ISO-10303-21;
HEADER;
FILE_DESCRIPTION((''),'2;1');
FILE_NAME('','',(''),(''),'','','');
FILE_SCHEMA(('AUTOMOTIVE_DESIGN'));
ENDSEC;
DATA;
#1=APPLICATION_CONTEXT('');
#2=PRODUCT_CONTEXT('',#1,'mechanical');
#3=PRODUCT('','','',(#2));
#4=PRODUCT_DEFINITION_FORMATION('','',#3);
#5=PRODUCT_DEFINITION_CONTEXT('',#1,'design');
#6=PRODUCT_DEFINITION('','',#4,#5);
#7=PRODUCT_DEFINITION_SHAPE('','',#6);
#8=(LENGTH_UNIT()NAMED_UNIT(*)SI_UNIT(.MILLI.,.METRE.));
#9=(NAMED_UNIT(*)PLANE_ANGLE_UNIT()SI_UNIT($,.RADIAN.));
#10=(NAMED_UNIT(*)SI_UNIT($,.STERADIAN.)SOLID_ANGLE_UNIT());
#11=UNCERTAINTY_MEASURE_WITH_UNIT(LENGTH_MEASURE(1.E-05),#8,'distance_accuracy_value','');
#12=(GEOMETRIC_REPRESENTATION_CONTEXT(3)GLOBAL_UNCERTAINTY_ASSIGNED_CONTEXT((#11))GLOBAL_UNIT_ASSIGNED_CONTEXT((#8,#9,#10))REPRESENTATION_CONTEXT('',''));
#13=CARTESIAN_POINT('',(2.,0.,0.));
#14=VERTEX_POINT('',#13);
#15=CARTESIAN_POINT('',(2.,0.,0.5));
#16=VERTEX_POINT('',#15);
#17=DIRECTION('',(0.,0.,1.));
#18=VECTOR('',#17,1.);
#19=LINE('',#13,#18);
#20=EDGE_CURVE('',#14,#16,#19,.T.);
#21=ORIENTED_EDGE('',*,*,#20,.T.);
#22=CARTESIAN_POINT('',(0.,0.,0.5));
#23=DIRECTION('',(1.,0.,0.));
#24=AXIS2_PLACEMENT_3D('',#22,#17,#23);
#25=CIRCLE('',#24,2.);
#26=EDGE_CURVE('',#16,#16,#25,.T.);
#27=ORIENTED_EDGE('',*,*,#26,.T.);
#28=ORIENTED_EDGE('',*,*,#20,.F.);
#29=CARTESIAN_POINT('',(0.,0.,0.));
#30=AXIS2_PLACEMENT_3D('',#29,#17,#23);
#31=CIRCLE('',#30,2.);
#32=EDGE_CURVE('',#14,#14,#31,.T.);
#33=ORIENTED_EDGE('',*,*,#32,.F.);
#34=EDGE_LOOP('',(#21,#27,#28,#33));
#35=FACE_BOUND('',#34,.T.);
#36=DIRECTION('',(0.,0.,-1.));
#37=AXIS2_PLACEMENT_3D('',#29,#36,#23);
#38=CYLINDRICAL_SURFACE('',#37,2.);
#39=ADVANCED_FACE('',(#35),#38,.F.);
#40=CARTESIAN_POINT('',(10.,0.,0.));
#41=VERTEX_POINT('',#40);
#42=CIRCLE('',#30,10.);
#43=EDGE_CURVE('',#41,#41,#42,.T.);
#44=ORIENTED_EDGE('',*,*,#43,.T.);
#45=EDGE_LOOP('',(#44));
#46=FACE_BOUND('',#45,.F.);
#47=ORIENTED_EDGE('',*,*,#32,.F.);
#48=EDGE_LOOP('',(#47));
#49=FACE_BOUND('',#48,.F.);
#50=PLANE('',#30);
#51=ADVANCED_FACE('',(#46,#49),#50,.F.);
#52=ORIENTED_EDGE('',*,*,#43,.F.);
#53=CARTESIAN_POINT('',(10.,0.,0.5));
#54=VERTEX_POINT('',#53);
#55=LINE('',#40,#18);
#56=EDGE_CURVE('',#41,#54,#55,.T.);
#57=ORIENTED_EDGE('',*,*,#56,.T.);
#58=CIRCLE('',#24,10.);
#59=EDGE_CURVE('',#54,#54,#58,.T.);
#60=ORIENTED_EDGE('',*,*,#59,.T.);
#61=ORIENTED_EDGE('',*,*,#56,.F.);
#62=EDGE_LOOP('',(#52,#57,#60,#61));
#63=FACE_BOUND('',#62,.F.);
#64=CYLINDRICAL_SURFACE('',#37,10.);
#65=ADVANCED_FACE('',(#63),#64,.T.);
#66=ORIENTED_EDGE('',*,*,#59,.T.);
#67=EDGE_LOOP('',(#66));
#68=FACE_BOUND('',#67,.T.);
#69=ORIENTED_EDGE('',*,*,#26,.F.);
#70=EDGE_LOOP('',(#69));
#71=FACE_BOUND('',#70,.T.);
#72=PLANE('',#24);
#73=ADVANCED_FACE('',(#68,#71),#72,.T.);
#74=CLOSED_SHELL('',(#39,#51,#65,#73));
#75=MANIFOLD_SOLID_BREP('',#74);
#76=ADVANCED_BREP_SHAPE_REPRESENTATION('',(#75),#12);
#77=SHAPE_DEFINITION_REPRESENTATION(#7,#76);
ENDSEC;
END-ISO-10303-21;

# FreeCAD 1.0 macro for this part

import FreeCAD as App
import Part
import Sketcher

V = App.Vector

doc = App.newDocument("Part")
body = doc.addObject("PartDesign::Body", "Body")

# Sketch on XY plane
sketch1 = doc.addObject("Sketcher::SketchObject", "Sketch")
body.addObject(sketch1)
sketch1.AttachmentSupport = (doc.XY_Plane, [""])
sketch1.MapMode = "FlatFace"
sketch1.addGeometry([
    Part.Circle(V(0, 0, 0), V(0, 0, 1), 10),
    Part.Circle(V(0, 0, 0), V(0, 0, 1), 2),
], False)
sketch1.addConstraint([
    Sketcher.Constraint("Coincident", 0, 3, -1, 1),
    Sketcher.Constraint("Coincident", 1, 3, -1, 1),
    Sketcher.Constraint("Diameter", 0, 20.0),
    Sketcher.Constraint("Diameter", 1, 4.0),
])
pad1 = doc.addObject("PartDesign::Pad", "Pad")
body.addObject(pad1)
pad1.Profile = sketch1
pad1.Length = 0.5

doc.recompute()
